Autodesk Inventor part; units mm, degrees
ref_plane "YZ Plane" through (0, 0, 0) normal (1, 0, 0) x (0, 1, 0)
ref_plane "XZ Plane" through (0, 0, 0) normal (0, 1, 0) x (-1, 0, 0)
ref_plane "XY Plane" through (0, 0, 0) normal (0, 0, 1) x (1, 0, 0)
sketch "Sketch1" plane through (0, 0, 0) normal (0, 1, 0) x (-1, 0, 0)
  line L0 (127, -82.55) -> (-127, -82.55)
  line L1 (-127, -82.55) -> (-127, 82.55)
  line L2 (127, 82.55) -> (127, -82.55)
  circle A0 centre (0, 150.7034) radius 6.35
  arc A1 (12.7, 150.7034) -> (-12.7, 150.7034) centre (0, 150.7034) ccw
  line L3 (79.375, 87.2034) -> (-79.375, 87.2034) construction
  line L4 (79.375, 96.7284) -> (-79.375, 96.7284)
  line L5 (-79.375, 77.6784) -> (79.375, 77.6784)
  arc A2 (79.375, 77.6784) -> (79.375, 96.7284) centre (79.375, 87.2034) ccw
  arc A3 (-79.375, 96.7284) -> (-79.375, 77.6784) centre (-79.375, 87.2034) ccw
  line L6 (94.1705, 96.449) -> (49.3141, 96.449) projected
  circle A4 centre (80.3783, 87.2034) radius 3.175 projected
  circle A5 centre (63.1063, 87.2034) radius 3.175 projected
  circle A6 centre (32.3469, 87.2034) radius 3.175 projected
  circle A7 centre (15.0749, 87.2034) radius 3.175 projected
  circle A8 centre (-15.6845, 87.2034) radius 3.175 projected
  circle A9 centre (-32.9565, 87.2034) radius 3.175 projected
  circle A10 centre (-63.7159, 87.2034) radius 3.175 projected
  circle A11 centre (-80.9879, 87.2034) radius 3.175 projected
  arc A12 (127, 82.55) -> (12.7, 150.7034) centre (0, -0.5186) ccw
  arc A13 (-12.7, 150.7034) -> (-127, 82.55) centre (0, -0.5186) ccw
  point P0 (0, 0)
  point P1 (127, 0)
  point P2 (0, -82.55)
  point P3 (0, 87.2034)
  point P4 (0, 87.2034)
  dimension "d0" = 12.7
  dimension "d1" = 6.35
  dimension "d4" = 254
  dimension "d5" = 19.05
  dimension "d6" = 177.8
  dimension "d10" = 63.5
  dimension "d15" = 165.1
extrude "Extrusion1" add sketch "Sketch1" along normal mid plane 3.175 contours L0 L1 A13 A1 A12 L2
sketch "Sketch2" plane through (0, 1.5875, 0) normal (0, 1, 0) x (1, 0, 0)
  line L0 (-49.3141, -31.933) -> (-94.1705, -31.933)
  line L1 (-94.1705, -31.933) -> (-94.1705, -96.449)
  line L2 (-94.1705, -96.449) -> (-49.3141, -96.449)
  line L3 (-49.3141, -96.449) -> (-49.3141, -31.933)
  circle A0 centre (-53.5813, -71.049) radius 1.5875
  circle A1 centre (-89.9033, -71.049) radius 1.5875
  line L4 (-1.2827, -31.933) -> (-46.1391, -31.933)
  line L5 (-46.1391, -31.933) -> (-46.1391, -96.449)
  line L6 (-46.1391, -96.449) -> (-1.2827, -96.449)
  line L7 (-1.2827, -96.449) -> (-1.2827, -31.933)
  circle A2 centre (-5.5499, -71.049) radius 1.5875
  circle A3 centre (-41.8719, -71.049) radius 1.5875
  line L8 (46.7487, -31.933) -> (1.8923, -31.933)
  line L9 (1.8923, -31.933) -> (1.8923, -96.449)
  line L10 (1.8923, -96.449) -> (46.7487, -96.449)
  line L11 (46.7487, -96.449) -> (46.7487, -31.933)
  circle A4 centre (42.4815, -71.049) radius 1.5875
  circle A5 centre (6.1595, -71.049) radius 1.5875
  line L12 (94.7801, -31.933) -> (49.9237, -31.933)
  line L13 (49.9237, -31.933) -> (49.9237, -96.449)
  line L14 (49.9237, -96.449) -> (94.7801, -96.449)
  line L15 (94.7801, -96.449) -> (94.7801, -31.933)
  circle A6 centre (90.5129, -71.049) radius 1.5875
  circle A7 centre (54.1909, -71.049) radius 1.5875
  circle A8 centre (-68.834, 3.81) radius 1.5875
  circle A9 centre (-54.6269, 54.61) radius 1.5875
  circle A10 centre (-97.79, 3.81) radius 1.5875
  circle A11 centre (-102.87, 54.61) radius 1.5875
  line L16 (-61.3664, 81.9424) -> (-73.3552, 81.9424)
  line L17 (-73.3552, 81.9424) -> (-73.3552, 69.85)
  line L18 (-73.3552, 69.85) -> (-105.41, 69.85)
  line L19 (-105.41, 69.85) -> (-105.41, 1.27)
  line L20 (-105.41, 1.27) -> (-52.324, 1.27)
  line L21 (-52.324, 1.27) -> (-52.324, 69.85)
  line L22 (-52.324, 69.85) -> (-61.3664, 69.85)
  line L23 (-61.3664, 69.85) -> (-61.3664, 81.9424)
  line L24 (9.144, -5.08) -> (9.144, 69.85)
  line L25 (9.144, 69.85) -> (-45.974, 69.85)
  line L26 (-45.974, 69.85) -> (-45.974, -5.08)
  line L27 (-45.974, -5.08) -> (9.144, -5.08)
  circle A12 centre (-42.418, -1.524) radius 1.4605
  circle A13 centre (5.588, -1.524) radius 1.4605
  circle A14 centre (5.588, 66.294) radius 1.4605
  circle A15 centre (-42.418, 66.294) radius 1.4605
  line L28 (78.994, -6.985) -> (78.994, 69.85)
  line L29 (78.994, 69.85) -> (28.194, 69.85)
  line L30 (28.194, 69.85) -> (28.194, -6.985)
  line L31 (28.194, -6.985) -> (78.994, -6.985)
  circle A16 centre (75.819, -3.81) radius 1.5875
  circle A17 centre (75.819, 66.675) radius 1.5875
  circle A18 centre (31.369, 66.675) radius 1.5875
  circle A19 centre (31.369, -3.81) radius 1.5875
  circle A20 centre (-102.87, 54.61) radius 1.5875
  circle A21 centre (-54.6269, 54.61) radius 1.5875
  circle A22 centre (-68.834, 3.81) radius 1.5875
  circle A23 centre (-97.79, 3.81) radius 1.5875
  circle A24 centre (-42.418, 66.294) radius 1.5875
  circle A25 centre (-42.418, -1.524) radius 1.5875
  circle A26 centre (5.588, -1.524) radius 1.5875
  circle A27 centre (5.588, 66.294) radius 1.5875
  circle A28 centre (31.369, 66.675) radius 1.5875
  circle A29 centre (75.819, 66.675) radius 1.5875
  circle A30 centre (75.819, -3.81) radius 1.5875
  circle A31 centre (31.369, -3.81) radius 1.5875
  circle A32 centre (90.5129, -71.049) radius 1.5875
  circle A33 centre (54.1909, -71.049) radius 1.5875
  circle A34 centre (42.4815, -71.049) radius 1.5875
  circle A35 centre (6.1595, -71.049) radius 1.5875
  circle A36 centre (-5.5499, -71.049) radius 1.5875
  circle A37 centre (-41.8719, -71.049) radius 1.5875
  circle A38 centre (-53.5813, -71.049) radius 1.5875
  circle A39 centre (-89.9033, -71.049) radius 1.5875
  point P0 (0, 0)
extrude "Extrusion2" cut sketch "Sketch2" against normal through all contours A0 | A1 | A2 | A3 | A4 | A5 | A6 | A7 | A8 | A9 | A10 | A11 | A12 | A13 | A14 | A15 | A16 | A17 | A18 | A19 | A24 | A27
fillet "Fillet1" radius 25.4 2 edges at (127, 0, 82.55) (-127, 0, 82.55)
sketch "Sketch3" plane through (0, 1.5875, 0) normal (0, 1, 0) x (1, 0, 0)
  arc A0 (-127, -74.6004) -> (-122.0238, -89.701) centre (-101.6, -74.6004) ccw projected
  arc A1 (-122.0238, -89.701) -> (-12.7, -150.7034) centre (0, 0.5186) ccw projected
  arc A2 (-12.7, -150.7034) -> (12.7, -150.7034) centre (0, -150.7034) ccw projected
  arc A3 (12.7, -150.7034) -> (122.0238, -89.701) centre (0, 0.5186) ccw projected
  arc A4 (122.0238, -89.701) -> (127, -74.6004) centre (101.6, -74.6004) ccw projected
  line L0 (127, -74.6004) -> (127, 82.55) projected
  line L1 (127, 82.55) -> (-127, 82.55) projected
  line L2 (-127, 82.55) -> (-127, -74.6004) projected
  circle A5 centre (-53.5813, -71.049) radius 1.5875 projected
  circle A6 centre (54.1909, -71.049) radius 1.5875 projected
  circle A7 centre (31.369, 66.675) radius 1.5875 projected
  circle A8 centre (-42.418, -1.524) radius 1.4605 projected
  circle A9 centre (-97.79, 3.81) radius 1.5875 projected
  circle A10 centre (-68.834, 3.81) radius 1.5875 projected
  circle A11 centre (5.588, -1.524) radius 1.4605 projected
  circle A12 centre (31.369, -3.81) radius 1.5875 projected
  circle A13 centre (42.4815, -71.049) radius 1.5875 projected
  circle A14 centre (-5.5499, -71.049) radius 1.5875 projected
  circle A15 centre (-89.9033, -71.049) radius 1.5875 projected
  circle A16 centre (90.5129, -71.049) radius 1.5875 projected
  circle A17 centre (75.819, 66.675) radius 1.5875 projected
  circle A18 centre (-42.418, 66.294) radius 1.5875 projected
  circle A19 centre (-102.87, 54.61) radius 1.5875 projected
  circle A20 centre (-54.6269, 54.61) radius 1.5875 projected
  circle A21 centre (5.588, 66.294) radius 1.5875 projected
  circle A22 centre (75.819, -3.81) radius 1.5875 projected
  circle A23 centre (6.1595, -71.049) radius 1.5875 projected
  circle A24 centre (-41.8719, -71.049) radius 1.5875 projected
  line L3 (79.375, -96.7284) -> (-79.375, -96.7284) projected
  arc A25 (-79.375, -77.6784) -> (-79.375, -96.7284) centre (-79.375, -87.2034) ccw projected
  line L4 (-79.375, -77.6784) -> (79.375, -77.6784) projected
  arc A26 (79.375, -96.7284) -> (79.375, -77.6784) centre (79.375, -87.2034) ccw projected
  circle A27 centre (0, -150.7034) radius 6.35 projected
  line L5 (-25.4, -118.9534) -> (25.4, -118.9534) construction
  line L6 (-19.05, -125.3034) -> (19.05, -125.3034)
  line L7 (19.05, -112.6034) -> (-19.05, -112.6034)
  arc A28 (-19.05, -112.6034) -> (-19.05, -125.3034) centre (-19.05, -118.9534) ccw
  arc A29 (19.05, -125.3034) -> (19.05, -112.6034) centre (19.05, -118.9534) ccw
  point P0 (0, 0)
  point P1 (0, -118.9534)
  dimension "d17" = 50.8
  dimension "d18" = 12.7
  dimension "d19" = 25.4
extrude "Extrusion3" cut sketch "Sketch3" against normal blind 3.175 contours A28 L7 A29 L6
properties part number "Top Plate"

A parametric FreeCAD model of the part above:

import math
import FreeCAD as App
import Part
import Sketcher
Q = App.Units.Quantity


def edges_at(feature, points):
    """Names of the edges that pass closest to the given points."""
    edges = feature.Shape.Edges
    near = lambda p: min(range(len(edges)), key=lambda i: edges[i].distToShape(Part.Vertex(*p))[0])
    return sorted({f"Edge{near(p) + 1}" for p in points})

doc = App.newDocument("Part")
body = doc.addObject("PartDesign::Body", "Body")

# Sketch on XZ plane
sketch1 = doc.addObject("Sketcher::SketchObject", "Sketch")
body.addObject(sketch1)
sketch1.AttachmentSupport = (doc.XZ_Plane, [""])
sketch1.MapMode = "FlatFace"
sketch1.addGeometry(Part.LineSegment(App.Vector(127, -82.55, 0), App.Vector(-127, -82.55, 0)), False)
sketch1.addGeometry(Part.LineSegment(App.Vector(-127, -82.55, 0), App.Vector(-127, 82.55, 0)), False)
sketch1.addGeometry(Part.ArcOfCircle(Part.Circle(App.Vector(0, -0.5186, 0), App.Vector(0, 0, 1), 151.754352), math.radians(94.800577), math.radians(146.811964)), False)
sketch1.addGeometry(Part.ArcOfCircle(Part.Circle(App.Vector(0, 150.7034, 0), App.Vector(0, 0, 1), 12.7), math.radians(0), math.radians(180)), False)
sketch1.addGeometry(Part.ArcOfCircle(Part.Circle(App.Vector(0, -0.5186, 0), App.Vector(0, 0, 1), 151.754382), math.radians(33.188036), math.radians(85.199423)), False)
sketch1.addGeometry(Part.LineSegment(App.Vector(127, 82.55, 0), App.Vector(127, -82.55, 0)), False)
sketch1.addGeometry(Part.LineSegment(App.Vector(79.375, 96.7284, 0), App.Vector(-79.375, 96.7284, 0)), False)
sketch1.addGeometry(Part.ArcOfCircle(Part.Circle(App.Vector(-79.375, 87.2034, 0), App.Vector(0, 0, 1), 9.525), math.radians(90), math.radians(270)), False)
sketch1.addGeometry(Part.LineSegment(App.Vector(-79.375, 77.6784, 0), App.Vector(79.375, 77.6784, 0)), False)
sketch1.addGeometry(Part.ArcOfCircle(Part.Circle(App.Vector(79.375, 87.2034, 0), App.Vector(0, 0, 1), 9.525), math.radians(-90), math.radians(90)), False)
sketch1.addGeometry(Part.Circle(App.Vector(0, 150.7034, 0), App.Vector(0, 0, 1), 6.35), False)
sketch1.addConstraint(Sketcher.Constraint("Coincident", 0, 2, 1, 1))
sketch1.addConstraint(Sketcher.Constraint("Coincident", 1, 2, 2, 2))
sketch1.addConstraint(Sketcher.Constraint("Coincident", 2, 1, 3, 2))
sketch1.addConstraint(Sketcher.Constraint("Coincident", 3, 1, 4, 2))
sketch1.addConstraint(Sketcher.Constraint("Coincident", 4, 1, 5, 1))
sketch1.addConstraint(Sketcher.Constraint("Coincident", 5, 2, 0, 1))
sketch1.addConstraint(Sketcher.Constraint("Tangent", 6, 2, 7, 1))
sketch1.addConstraint(Sketcher.Constraint("Tangent", 7, 2, 8, 1))
sketch1.addConstraint(Sketcher.Constraint("Tangent", 8, 2, 9, 1))
sketch1.addConstraint(Sketcher.Constraint("Tangent", 9, 2, 6, 1))
sketch1.addConstraint(Sketcher.Constraint("Horizontal", 0))
sketch1.addConstraint(Sketcher.Constraint("Vertical", 1))
sketch1.addConstraint(Sketcher.Constraint("Vertical", 5))
sketch1.addConstraint(Sketcher.Constraint("Horizontal", 6))
sketch1.addConstraint(Sketcher.Constraint("Horizontal", 8))
sketch1.addConstraint(Sketcher.Constraint("Coincident", 4, 3, 2, 3))
sketch1.addConstraint(Sketcher.Constraint("Coincident", 10, 3, 3, 3))
sketch1.addConstraint(Sketcher.Constraint("Equal", 2, 4))
sketch1.addConstraint(Sketcher.Constraint("Symmetric", 0, 2, 4, 1, -1, 1))
sketch1.addConstraint(Sketcher.Constraint("Symmetric", 2, 1, 3, 1, -2))
sketch1.addConstraint(Sketcher.Constraint("Horizontal", 10, 3, 2, 1))
sketch1.addConstraint(Sketcher.Constraint("Diameter", 10, Q("0.5 in")))
sketch1.addConstraint(Sketcher.Constraint("Radius", 3, Q("0.5 in")))
sketch1.addConstraint(Sketcher.Constraint("DistanceX", 0, 2, 0, 1, Q("10 in")))
sketch1.addConstraint(Sketcher.Constraint("DistanceY", 1, 1, 1, 2, Q("6.5 in")))
sketch1.addConstraint(Sketcher.Constraint("Radius", 7, Q("0.375 in")))
sketch1.addConstraint(Sketcher.Constraint("DistanceY", 7, 3, 3, 3, Q("2.5 in")))
sketch1.addConstraint(Sketcher.Constraint("DistanceX", 6, 2, 6, 1, Q("6.25 in")))
sketch1.addConstraint(Sketcher.Constraint("Radius", 2, 151.7544))
sketch1.addConstraint(Sketcher.Constraint("DistanceX", 7, 3, -1, 1, Q("3.125 in")))
pad1 = doc.addObject("PartDesign::Pad", "Pad")
body.addObject(pad1)
pad1.Profile = sketch1
pad1.Length = Q("0.125 in")
pad1.Midplane = True

# Sketch on XZ plane
sketch2 = doc.addObject("Sketcher::SketchObject", "Sketch001")
body.addObject(sketch2)
sketch2.AttachmentSupport = (doc.XZ_Plane, [""])
sketch2.MapMode = "FlatFace"
sketch2.AttachmentOffset = App.Placement(App.Vector(0, 0, -0.0625 * 25.4), App.Rotation())
sketch2.addGeometry(Part.Circle(App.Vector(-53.5813, 71.049, 0), App.Vector(0, 0, 1), 1.5875), False)
sketch2.addGeometry(Part.Circle(App.Vector(-89.9033, 71.049, 0), App.Vector(0, 0, 1), 1.5875), False)
sketch2.addGeometry(Part.Circle(App.Vector(-5.5499, 71.049, 0), App.Vector(0, 0, 1), 1.5875), False)
sketch2.addGeometry(Part.Circle(App.Vector(-41.8719, 71.049, 0), App.Vector(0, 0, 1), 1.5875), False)
sketch2.addGeometry(Part.Circle(App.Vector(42.4815, 71.049, 0), App.Vector(0, 0, 1), 1.5875), False)
sketch2.addGeometry(Part.Circle(App.Vector(6.1595, 71.049, 0), App.Vector(0, 0, 1), 1.5875), False)
sketch2.addGeometry(Part.Circle(App.Vector(90.5129, 71.049, 0), App.Vector(0, 0, 1), 1.5875), False)
sketch2.addGeometry(Part.Circle(App.Vector(54.1909, 71.049, 0), App.Vector(0, 0, 1), 1.5875), False)
sketch2.addGeometry(Part.Circle(App.Vector(-68.834, -3.81, 0), App.Vector(0, 0, 1), 1.5875), False)
sketch2.addGeometry(Part.Circle(App.Vector(-54.6269, -54.61, 0), App.Vector(0, 0, 1), 1.5875), False)
sketch2.addGeometry(Part.Circle(App.Vector(-97.79, -3.81, 0), App.Vector(0, 0, 1), 1.5875), False)
sketch2.addGeometry(Part.Circle(App.Vector(-102.87, -54.61, 0), App.Vector(0, 0, 1), 1.5875), False)
sketch2.addGeometry(Part.Circle(App.Vector(-42.418, 1.524, 0), App.Vector(0, 0, 1), 1.4605), False)
sketch2.addGeometry(Part.Circle(App.Vector(5.588, 1.524, 0), App.Vector(0, 0, 1), 1.4605), False)
sketch2.addGeometry(Part.Circle(App.Vector(5.588, -66.294, 0), App.Vector(0, 0, 1), 1.5875), False)
sketch2.addGeometry(Part.Circle(App.Vector(-42.418, -66.294, 0), App.Vector(0, 0, 1), 1.5875), False)
sketch2.addGeometry(Part.Circle(App.Vector(75.819, 3.81, 0), App.Vector(0, 0, 1), 1.5875), False)
sketch2.addGeometry(Part.Circle(App.Vector(75.819, -66.675, 0), App.Vector(0, 0, 1), 1.5875), False)
sketch2.addGeometry(Part.Circle(App.Vector(31.369, -66.675, 0), App.Vector(0, 0, 1), 1.5875), False)
sketch2.addGeometry(Part.Circle(App.Vector(31.369, 3.81, 0), App.Vector(0, 0, 1), 1.5875), False)
sketch2.addConstraint(Sketcher.Constraint("Equal", 0, 1))
sketch2.addConstraint(Sketcher.Constraint("Equal", 1, 2))
sketch2.addConstraint(Sketcher.Constraint("Equal", 2, 3))
sketch2.addConstraint(Sketcher.Constraint("Equal", 3, 4))
sketch2.addConstraint(Sketcher.Constraint("Equal", 4, 5))
sketch2.addConstraint(Sketcher.Constraint("Equal", 5, 6))
sketch2.addConstraint(Sketcher.Constraint("Equal", 6, 7))
sketch2.addConstraint(Sketcher.Constraint("Equal", 7, 8))
sketch2.addConstraint(Sketcher.Constraint("Equal", 8, 9))
sketch2.addConstraint(Sketcher.Constraint("Equal", 9, 10))
sketch2.addConstraint(Sketcher.Constraint("Equal", 10, 11))
sketch2.addConstraint(Sketcher.Constraint("Equal", 12, 13))
sketch2.addConstraint(Sketcher.Constraint("Equal", 11, 14))
sketch2.addConstraint(Sketcher.Constraint("Equal", 14, 15))
sketch2.addConstraint(Sketcher.Constraint("Equal", 15, 16))
sketch2.addConstraint(Sketcher.Constraint("Equal", 16, 17))
sketch2.addConstraint(Sketcher.Constraint("Equal", 17, 18))
sketch2.addConstraint(Sketcher.Constraint("Equal", 18, 19))
sketch2.addConstraint(Sketcher.Constraint("Horizontal", 0, 3, 1, 3))
sketch2.addConstraint(Sketcher.Constraint("Horizontal", 1, 3, 2, 3))
sketch2.addConstraint(Sketcher.Constraint("Horizontal", 2, 3, 3, 3))
sketch2.addConstraint(Sketcher.Constraint("Horizontal", 3, 3, 4, 3))
sketch2.addConstraint(Sketcher.Constraint("Horizontal", 4, 3, 5, 3))
sketch2.addConstraint(Sketcher.Constraint("Horizontal", 5, 3, 6, 3))
sketch2.addConstraint(Sketcher.Constraint("Horizontal", 6, 3, 7, 3))
sketch2.addConstraint(Sketcher.Constraint("Horizontal", 8, 3, 10, 3))
sketch2.addConstraint(Sketcher.Constraint("Horizontal", 9, 3, 11, 3))
sketch2.addConstraint(Sketcher.Constraint("Horizontal", 12, 3, 13, 3))
sketch2.addConstraint(Sketcher.Constraint("Horizontal", 14, 3, 15, 3))
sketch2.addConstraint(Sketcher.Constraint("Horizontal", 17, 3, 18, 3))
sketch2.addConstraint(Sketcher.Constraint("Horizontal", 16, 3, 19, 3))
sketch2.addConstraint(Sketcher.Constraint("Vertical", 13, 3, 14, 3))
sketch2.addConstraint(Sketcher.Constraint("Vertical", 12, 3, 15, 3))
sketch2.addConstraint(Sketcher.Constraint("Vertical", 16, 3, 17, 3))
sketch2.addConstraint(Sketcher.Constraint("Vertical", 18, 3, 19, 3))
sketch2.addConstraint(Sketcher.Constraint("Diameter", 0, Q("0.125 in")))
sketch2.addConstraint(Sketcher.Constraint("Diameter", 12, Q("0.115 in")))
sketch2.addConstraint(Sketcher.Constraint("DistanceY", 9, 3, 8, 3, Q("2 in")))
sketch2.addConstraint(Sketcher.Constraint("DistanceX", 11, 3, 10, 3, Q("0.2 in")))
sketch2.addConstraint(Sketcher.Constraint("DistanceX", 8, 3, -1, 1, Q("2.71 in")))
sketch2.addConstraint(Sketcher.Constraint("DistanceY", 8, 3, -1, 1, Q("0.15 in")))
sketch2.addConstraint(Sketcher.Constraint("DistanceX", 10, 3, -1, 1, Q("3.85 in")))
sketch2.addConstraint(Sketcher.Constraint("DistanceX", 12, 3, -1, 1, Q("1.67 in")))
sketch2.addConstraint(Sketcher.Constraint("DistanceY", -1, 1, 12, 3, Q("0.06 in")))
sketch2.addConstraint(Sketcher.Constraint("DistanceX", -1, 1, 13, 3, Q("0.22 in")))
sketch2.addConstraint(Sketcher.Constraint("DistanceY", 14, 3, -1, 1, Q("2.61 in")))
sketch2.addConstraint(Sketcher.Constraint("DistanceY", -1, 1, 16, 3, Q("0.15 in")))
sketch2.addConstraint(Sketcher.Constraint("DistanceX", 1, 3, 0, 3, Q("1.43 in")))
sketch2.addConstraint(Sketcher.Constraint("DistanceX", 3, 3, 2, 3, Q("1.43 in")))
sketch2.addConstraint(Sketcher.Constraint("DistanceX", 5, 3, 4, 3, Q("1.43 in")))
sketch2.addConstraint(Sketcher.Constraint("DistanceX", 7, 3, 6, 3, Q("1.43 in")))
sketch2.addConstraint(Sketcher.Constraint("DistanceX", 18, 3, 17, 3, Q("1.75 in")))
sketch2.addConstraint(Sketcher.Constraint("DistanceX", -1, 1, 16, 3, Q("2.985 in")))
sketch2.addConstraint(Sketcher.Constraint("DistanceY", 17, 3, -1, 1, Q("2.625 in")))
sketch2.addConstraint(Sketcher.Constraint("DistanceX", 0, 3, 2, 3, Q("1.891 in")))
sketch2.addConstraint(Sketcher.Constraint("DistanceX", 2, 3, 4, 3, Q("1.891 in")))
sketch2.addConstraint(Sketcher.Constraint("DistanceX", 4, 3, 6, 3, Q("1.891 in")))
sketch2.addConstraint(Sketcher.Constraint("DistanceX", 4, 3, 16, 3, Q("1.3125 in")))
sketch2.addConstraint(Sketcher.Constraint("DistanceY", -1, 1, 0, 3, Q("2.7972 in")))
sketch2.addConstraint(Sketcher.Constraint("DistanceX", 9, 3, -1, 1, 54.627))
pocket1 = doc.addObject("PartDesign::Pocket", "Pocket")
body.addObject(pocket1)
pocket1.Profile = sketch2
pocket1.Type = "ThroughAll"
pocket1.Reversed = True
doc.recompute()

fillet = doc.addObject("PartDesign::Fillet", "Fillet")
body.addObject(fillet)
fillet.Base = (pocket1, edges_at(pocket1, [(127, 0, 82.55), (-127, 0, 82.55)]))
fillet.Radius = Q("1 in")

# Sketch on XZ plane
sketch3 = doc.addObject("Sketcher::SketchObject", "Sketch002")
body.addObject(sketch3)
sketch3.AttachmentSupport = (doc.XZ_Plane, [""])
sketch3.MapMode = "FlatFace"
sketch3.AttachmentOffset = App.Placement(App.Vector(0, 0, -0.0625 * 25.4), App.Rotation())
sketch3.addGeometry(Part.ArcOfCircle(Part.Circle(App.Vector(-19.05, 118.9534, 0), App.Vector(0, 0, 1), 6.35), math.radians(90), math.radians(270)), False)
sketch3.addGeometry(Part.LineSegment(App.Vector(-19.05, 125.3034, 0), App.Vector(19.05, 125.3034, 0)), False)
sketch3.addGeometry(Part.ArcOfCircle(Part.Circle(App.Vector(19.05, 118.9534, 0), App.Vector(0, 0, 1), 6.35), math.radians(-90), math.radians(90)), False)
sketch3.addGeometry(Part.LineSegment(App.Vector(19.05, 112.6034, 0), App.Vector(-19.05, 112.6034, 0)), False)
sketch3.addConstraint(Sketcher.Constraint("Tangent", 0, 1, 1, 1))
sketch3.addConstraint(Sketcher.Constraint("Tangent", 1, 2, 2, 2))
sketch3.addConstraint(Sketcher.Constraint("Tangent", 2, 1, 3, 1))
sketch3.addConstraint(Sketcher.Constraint("Tangent", 3, 2, 0, 2))
sketch3.addConstraint(Sketcher.Constraint("Horizontal", 1))
sketch3.addConstraint(Sketcher.Constraint("Horizontal", 3))
sketch3.addConstraint(Sketcher.Constraint("Radius", 0, Q("0.25 in")))
sketch3.addConstraint(Sketcher.Constraint("DistanceX", 1, 1, 1, 2, Q("1.5 in")))
sketch3.addConstraint(Sketcher.Constraint("DistanceX", 0, 3, -1, 1, Q("0.75 in")))
sketch3.addConstraint(Sketcher.Constraint("DistanceY", -1, 1, 0, 3, Q("4.6832 in")))
pocket2 = doc.addObject("PartDesign::Pocket", "Pocket001")
body.addObject(pocket2)
pocket2.Profile = sketch3
pocket2.Length = Q("0.125 in")
pocket2.Reversed = True

doc.recompute()
